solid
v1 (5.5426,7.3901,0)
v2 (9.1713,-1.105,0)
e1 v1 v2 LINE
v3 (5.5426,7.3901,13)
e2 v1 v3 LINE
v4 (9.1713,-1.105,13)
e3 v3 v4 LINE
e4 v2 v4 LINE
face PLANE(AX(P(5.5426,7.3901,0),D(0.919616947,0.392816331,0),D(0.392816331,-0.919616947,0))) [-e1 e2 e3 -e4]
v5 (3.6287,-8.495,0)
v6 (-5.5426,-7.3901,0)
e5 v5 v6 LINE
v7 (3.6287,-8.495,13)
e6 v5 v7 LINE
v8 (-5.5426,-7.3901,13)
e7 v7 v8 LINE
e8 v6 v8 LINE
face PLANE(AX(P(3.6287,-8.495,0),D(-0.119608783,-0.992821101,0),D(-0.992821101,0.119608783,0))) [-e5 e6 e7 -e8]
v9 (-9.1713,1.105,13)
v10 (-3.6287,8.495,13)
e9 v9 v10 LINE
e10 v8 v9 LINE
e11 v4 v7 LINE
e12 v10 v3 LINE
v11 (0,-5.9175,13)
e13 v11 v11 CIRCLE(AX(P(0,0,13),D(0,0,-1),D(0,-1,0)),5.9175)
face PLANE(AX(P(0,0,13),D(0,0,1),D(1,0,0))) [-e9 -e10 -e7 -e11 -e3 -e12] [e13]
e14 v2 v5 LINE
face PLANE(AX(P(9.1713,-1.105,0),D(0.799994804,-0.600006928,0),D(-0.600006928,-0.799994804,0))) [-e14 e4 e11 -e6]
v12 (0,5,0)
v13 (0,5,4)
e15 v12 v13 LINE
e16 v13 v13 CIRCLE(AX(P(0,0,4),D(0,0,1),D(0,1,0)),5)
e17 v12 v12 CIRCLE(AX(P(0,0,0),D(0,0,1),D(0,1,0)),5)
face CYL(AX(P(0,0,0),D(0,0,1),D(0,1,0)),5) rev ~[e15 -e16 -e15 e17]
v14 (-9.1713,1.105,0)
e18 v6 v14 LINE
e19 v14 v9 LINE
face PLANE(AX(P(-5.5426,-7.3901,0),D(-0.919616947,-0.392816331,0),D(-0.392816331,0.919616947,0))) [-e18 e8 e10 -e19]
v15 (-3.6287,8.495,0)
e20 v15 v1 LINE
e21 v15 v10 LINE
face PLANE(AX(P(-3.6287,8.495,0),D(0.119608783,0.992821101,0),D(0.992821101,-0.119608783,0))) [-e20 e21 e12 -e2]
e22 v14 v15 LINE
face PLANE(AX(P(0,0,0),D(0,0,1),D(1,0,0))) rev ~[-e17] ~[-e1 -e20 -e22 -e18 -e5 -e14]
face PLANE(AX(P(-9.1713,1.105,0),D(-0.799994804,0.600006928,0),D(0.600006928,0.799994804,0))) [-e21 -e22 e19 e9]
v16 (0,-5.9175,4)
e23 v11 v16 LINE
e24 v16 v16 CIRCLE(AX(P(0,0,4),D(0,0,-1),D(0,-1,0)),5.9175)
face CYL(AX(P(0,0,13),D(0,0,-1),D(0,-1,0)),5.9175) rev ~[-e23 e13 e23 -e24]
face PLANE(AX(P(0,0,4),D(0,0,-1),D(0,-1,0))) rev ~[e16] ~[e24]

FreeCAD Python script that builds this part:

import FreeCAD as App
import Part
import Sketcher
from FreeCAD import Vector
Q = App.Units.Quantity


def add_polygon(sketch, points):
    """Adds a closed chain of lines whose ends are joined by coincident constraints."""
    first, n = sketch.GeometryCount, len(points)
    for a, b in zip(points, points[1:] + points[:1]):
        sketch.addGeometry(Part.LineSegment(App.Vector(*a, 0), App.Vector(*b, 0)), False)
    for i in range(n):
        sketch.addConstraint(Sketcher.Constraint("Coincident", first + i, 2, first + (i + 1) % n, 1))

doc = App.newDocument("Part")
body = doc.addObject("PartDesign::Body", "Body")

# Sketch on XY plane
sketch1 = body.newObject("Sketcher::SketchObject", "Sketch")
sketch1.AttachmentSupport = (doc.getObject("XY_Plane"), [""])
sketch1.MapMode = "FlatFace"
add_polygon(sketch1, [(-9, 1), (-6, -7), (4, -8), (9, -1), (6, 7), (-4, 8)])  # lines 0-5
sketch1.addConstraint([
    Sketcher.Constraint("Symmetric", 0, 2, 3, 2, -1, 1),
    Sketcher.Constraint("Symmetric", 1, 2, 4, 2, -1, 1),
    Sketcher.Constraint("Symmetric", 2, 2, 5, 2, -1, 1),
    Sketcher.Constraint("Equal", 0, 1),
    Sketcher.Constraint("Equal", 1, 2),
    Sketcher.Constraint("Angle", 0, Q("-66.8701 deg")),
    Sketcher.Constraint("Angle", 1, Q("-6.8695 deg")),
    Sketcher.Constraint("Angle", 2, Q("53.1296 deg")),
    Sketcher.Constraint("DistanceX", 4, 2, 2, 2, Q("12.8 mm")),
])
pad1 = body.newObject("PartDesign::Pad", "Pad")
pad1.Profile = sketch1
pad1.Length = 13

# Sketch on XY plane
sketch2 = body.newObject("Sketcher::SketchObject", "Sketch001")
sketch2.AttachmentSupport = (doc.getObject("XY_Plane"), [""])
sketch2.MapMode = "FlatFace"
sketch2.AttachmentOffset = App.Placement(Vector(0, 0, 13), App.Rotation())
sketch2.addGeometry(Part.Circle(Vector(0, 0, 0), Vector(0, 0, 1), 6), False)
sketch2.addConstraint([
    Sketcher.Constraint("Coincident", 0, 3, -1, 1),
    Sketcher.Constraint("Diameter", 0, Q("11.835 mm")),
])
doc.recompute()
hole = body.newObject("PartDesign::Hole", "Hole")
hole.Profile = sketch2
hole.ThreadType = "None"
hole.Diameter = 11.835
hole.DepthType = "Dimension"
hole.Depth = 9
hole.DrillPoint = "Flat"

# Sketch on XY plane
sketch3 = body.newObject("Sketcher::SketchObject", "Sketch002")
sketch3.AttachmentSupport = (doc.getObject("XY_Plane"), [""])
sketch3.MapMode = "FlatFace"
sketch3.addGeometry(Part.Circle(Vector(0, 0, 0), Vector(0, 0, 1), 5), False)
sketch3.addConstraint([
    Sketcher.Constraint("Coincident", 0, 3, -1, 1),
    Sketcher.Constraint("Diameter", 0, Q("10 mm")),
])
doc.recompute()
hole2 = body.newObject("PartDesign::Hole", "Hole001")
hole2.Profile = sketch3
hole2.ThreadType = "None"
hole2.Diameter = 10
hole2.DepthType = "Dimension"
hole2.Depth = 9
hole2.DrillPoint = "Flat"
hole2.Reversed = True

doc.recompute()
